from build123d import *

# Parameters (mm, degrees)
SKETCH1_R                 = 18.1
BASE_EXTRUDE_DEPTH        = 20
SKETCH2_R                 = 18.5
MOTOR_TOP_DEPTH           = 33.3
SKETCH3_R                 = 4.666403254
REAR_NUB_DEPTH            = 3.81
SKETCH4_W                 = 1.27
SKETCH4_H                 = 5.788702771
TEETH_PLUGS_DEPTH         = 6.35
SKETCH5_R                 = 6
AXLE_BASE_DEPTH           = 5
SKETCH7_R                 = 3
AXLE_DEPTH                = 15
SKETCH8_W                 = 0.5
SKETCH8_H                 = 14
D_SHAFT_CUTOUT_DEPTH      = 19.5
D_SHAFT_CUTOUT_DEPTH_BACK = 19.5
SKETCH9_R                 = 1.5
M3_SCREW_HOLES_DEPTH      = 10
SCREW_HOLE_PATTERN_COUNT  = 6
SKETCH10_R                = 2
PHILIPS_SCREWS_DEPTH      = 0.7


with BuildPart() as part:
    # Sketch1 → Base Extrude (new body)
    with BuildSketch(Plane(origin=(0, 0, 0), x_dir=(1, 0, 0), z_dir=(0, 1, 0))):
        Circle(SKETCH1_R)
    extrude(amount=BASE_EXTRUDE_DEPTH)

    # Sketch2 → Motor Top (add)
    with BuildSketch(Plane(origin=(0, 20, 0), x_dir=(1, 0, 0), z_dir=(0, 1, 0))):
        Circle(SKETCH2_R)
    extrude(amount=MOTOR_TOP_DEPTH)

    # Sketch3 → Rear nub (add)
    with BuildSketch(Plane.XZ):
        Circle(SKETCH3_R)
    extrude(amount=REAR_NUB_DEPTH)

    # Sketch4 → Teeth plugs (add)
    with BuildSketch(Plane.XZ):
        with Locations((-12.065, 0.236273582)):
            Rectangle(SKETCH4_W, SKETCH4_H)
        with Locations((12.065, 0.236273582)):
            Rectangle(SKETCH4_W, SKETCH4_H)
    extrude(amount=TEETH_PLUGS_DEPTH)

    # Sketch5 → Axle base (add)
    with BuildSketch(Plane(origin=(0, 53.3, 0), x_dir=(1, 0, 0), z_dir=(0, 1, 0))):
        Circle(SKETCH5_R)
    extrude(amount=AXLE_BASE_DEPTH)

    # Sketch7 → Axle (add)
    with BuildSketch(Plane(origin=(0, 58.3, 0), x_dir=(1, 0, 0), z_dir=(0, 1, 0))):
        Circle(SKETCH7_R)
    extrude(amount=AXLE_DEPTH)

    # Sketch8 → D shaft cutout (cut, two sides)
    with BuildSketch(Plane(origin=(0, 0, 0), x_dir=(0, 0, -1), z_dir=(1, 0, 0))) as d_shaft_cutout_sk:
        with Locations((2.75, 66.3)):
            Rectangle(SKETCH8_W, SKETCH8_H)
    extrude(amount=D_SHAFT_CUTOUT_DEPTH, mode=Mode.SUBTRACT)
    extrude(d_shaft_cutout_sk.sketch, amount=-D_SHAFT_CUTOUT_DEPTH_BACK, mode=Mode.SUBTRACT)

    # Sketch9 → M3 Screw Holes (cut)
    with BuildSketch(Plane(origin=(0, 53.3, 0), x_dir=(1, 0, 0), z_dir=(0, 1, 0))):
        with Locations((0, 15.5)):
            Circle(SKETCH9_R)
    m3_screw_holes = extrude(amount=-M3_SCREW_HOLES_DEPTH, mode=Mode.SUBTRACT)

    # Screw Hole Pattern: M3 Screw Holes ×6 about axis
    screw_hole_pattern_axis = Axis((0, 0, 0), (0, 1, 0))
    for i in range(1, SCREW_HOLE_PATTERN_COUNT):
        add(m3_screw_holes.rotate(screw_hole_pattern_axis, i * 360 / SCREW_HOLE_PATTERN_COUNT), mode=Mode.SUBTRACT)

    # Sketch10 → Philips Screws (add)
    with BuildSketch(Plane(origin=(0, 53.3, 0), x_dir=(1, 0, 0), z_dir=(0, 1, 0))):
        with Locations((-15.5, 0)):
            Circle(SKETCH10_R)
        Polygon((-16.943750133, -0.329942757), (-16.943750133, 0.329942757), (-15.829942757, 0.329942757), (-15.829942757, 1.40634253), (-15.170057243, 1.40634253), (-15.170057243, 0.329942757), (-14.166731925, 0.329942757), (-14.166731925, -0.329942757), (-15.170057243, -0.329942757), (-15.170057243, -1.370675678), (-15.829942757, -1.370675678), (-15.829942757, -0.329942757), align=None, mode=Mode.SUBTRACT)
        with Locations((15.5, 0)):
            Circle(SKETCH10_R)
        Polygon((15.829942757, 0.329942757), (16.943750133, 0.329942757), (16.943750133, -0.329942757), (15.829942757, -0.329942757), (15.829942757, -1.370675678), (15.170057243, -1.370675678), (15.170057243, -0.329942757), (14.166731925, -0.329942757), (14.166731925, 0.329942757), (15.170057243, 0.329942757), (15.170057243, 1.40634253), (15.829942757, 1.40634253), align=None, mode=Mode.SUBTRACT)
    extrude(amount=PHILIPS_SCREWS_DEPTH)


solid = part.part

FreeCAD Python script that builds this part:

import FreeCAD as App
import Part
import Sketcher
Q = App.Units.Quantity


def add_polygon(sketch, points):
    """Adds a closed chain of lines whose ends are joined by coincident constraints."""
    first, n = sketch.GeometryCount, len(points)
    for a, b in zip(points, points[1:] + points[:1]):
        sketch.addGeometry(Part.LineSegment(App.Vector(*a, 0), App.Vector(*b, 0)), False)
    for i in range(n):
        sketch.addConstraint(Sketcher.Constraint("Coincident", first + i, 2, first + (i + 1) % n, 1))

doc = App.newDocument("Part")
params = doc.addObject("Spreadsheet::Sheet", "Params")
for row, (alias, value) in enumerate([
    ("sketch1_diameter", "36.2 mm"),
    ("pad1_length", "20 mm"),
    ("sketch2_diameter", "37 mm"),
    ("pad2_length", "33.3 mm"),
    ("pad3_length", "3.81 mm"),
    ("sketch4_width", "1.27 mm"),
    ("pad4_length", "6.35 mm"),
    ("sketch5_diameter", "12 mm"),
    ("pad5_length", "5 mm"),
    ("sketch6_diameter", "6 mm"),
    ("pad6_length", "15 mm"),
    ("sketch7_width", "14 mm"),
    ("sketch7_height", "0.5 mm"),
    ("sketch8_diameter", "3 mm"),
    ("pocket2_length", "10 mm"),
    ("sketch9_diameter", "4 mm"),
    ("pad7_length", "0.7 mm"),
], start=1):
    params.set(f"A{row}", alias)
    params.set(f"B{row}", "=" + value)
    params.setAlias(f"B{row}", alias)

body = doc.addObject("PartDesign::Body", "Body")

# Sketch on XZ plane
sketch1 = body.newObject("Sketcher::SketchObject", "Sketch")
sketch1.AttachmentSupport = (doc.getObject("XZ_Plane"), [""])
sketch1.MapMode = "FlatFace"
sketch1.addGeometry(Part.Circle(App.Vector(0, 0, 0), App.Vector(0, 0, 1), 18), False)
sketch1.addConstraint(Sketcher.Constraint("Coincident", 0, 3, -1, 1))
sketch1.addConstraint(Sketcher.Constraint("Diameter", 0, Q("36.2 mm")))
sketch1.setExpression("Constraints[1]", "Params.sketch1_diameter")
pad1 = body.newObject("PartDesign::Pad", "Pad")
pad1.Profile = sketch1
pad1.setExpression("Length", "Params.pad1_length")
pad1.Reversed = True

# Sketch on XZ plane
sketch2 = body.newObject("Sketcher::SketchObject", "Sketch001")
sketch2.AttachmentSupport = (doc.getObject("XZ_Plane"), [""])
sketch2.MapMode = "FlatFace"
sketch2.AttachmentOffset = App.Placement(App.Vector(0, 0, -20), App.Rotation())
sketch2.addGeometry(Part.Circle(App.Vector(0, 0, 0), App.Vector(0, 0, 1), 18), False)
sketch2.addConstraint(Sketcher.Constraint("Coincident", 0, 3, -1, 1))
sketch2.addConstraint(Sketcher.Constraint("Diameter", 0, Q("37 mm")))
sketch2.setExpression("Constraints[1]", "Params.sketch2_diameter")
pad2 = body.newObject("PartDesign::Pad", "Pad001")
pad2.Profile = sketch2
pad2.setExpression("Length", "Params.pad2_length")
pad2.Reversed = True

# Sketch on XZ plane
sketch3 = body.newObject("Sketcher::SketchObject", "Sketch002")
sketch3.AttachmentSupport = (doc.getObject("XZ_Plane"), [""])
sketch3.MapMode = "FlatFace"
sketch3.addGeometry(Part.Circle(App.Vector(0, 0, 0), App.Vector(0, 0, 1), 4.7), False)
sketch3.addConstraint(Sketcher.Constraint("Coincident", 0, 3, -1, 1))
sketch3.addConstraint(Sketcher.Constraint("Diameter", 0, Q("9.332807 mm")))
pad3 = body.newObject("PartDesign::Pad", "Pad002")
pad3.Profile = sketch3
pad3.setExpression("Length", "Params.pad3_length")

# Sketch on XZ plane
sketch4 = body.newObject("Sketcher::SketchObject", "Sketch003")
sketch4.AttachmentSupport = (doc.getObject("XZ_Plane"), [""])
sketch4.MapMode = "FlatFace"
add_polygon(sketch4, [(-12.7, 3.1), (-12.7, -2.7), (-11.4, -2.7), (-11.4, 3.1)])  # lines 0-3
add_polygon(sketch4, [(11.4, 3.1), (11.4, -2.7), (12.7, -2.7), (12.7, 3.1)])  # lines 4-7
sketch4.addConstraint(Sketcher.Constraint("Vertical", 0))
sketch4.addConstraint(Sketcher.Constraint("Horizontal", 1))
sketch4.addConstraint(Sketcher.Constraint("Vertical", 2))
sketch4.addConstraint(Sketcher.Constraint("Horizontal", 3))
sketch4.addConstraint(Sketcher.Constraint("Vertical", 4))
sketch4.addConstraint(Sketcher.Constraint("Horizontal", 5))
sketch4.addConstraint(Sketcher.Constraint("Vertical", 6))
sketch4.addConstraint(Sketcher.Constraint("Horizontal", 7))
sketch4.addConstraint(Sketcher.Constraint("Symmetric", 1, 2, 4, 2, -2))
sketch4.addConstraint(Sketcher.Constraint("Symmetric", 3, 2, 6, 2, -2))
sketch4.addConstraint(Sketcher.Constraint("DistanceX", 1, 1, 1, 2, Q("1.27 mm")))
sketch4.addConstraint(Sketcher.Constraint("DistanceX", 0, 2, -1, 1, Q("12.7 mm")))
sketch4.addConstraint(Sketcher.Constraint("DistanceY", 0, 2, 0, 1, Q("5.788703 mm")))
sketch4.addConstraint(Sketcher.Constraint("DistanceY", 0, 2, -1, 1, Q("2.658078 mm")))
sketch4.setExpression("Constraints[18]", "Params.sketch4_width")
pad4 = body.newObject("PartDesign::Pad", "Pad003")
pad4.Profile = sketch4
pad4.setExpression("Length", "Params.pad4_length")

# Sketch on XZ plane
sketch5 = body.newObject("Sketcher::SketchObject", "Sketch004")
sketch5.AttachmentSupport = (doc.getObject("XZ_Plane"), [""])
sketch5.MapMode = "FlatFace"
sketch5.AttachmentOffset = App.Placement(App.Vector(0, 0, -53.3), App.Rotation())
sketch5.addGeometry(Part.Circle(App.Vector(0, 0, 0), App.Vector(0, 0, 1), 6), False)
sketch5.addConstraint(Sketcher.Constraint("Coincident", 0, 3, -1, 1))
sketch5.addConstraint(Sketcher.Constraint("Diameter", 0, Q("12 mm")))
sketch5.setExpression("Constraints[1]", "Params.sketch5_diameter")
pad5 = body.newObject("PartDesign::Pad", "Pad004")
pad5.Profile = sketch5
pad5.setExpression("Length", "Params.pad5_length")
pad5.Reversed = True

# Sketch on XZ plane
sketch6 = body.newObject("Sketcher::SketchObject", "Sketch005")
sketch6.AttachmentSupport = (doc.getObject("XZ_Plane"), [""])
sketch6.MapMode = "FlatFace"
sketch6.AttachmentOffset = App.Placement(App.Vector(0, 0, -58.3), App.Rotation())
sketch6.addGeometry(Part.Circle(App.Vector(0, 0, 0), App.Vector(0, 0, 1), 3), False)
sketch6.addConstraint(Sketcher.Constraint("Coincident", 0, 3, -1, 1))
sketch6.addConstraint(Sketcher.Constraint("Diameter", 0, Q("6 mm")))
sketch6.setExpression("Constraints[1]", "Params.sketch6_diameter")
pad6 = body.newObject("PartDesign::Pad", "Pad005")
pad6.Profile = sketch6
pad6.setExpression("Length", "Params.pad6_length")
pad6.Reversed = True

# Sketch on YZ plane
sketch7 = body.newObject("Sketcher::SketchObject", "Sketch006")
sketch7.AttachmentSupport = (doc.getObject("YZ_Plane"), [""])
sketch7.MapMode = "FlatFace"
add_polygon(sketch7, [(73.3, -2.5), (59.3, -2.5), (59.3, -3), (73.3, -3)])  # lines 0-3
sketch7.addConstraint(Sketcher.Constraint("Horizontal", 0))
sketch7.addConstraint(Sketcher.Constraint("Vertical", 1))
sketch7.addConstraint(Sketcher.Constraint("Horizontal", 2))
sketch7.addConstraint(Sketcher.Constraint("Vertical", 3))
sketch7.addConstraint(Sketcher.Constraint("DistanceX", 0, 2, 0, 1, Q("14 mm")))
sketch7.addConstraint(Sketcher.Constraint("DistanceY", 1, 2, 1, 1, Q("0.5 mm")))
sketch7.addConstraint(Sketcher.Constraint("DistanceY", 1, 2, -1, 1, Q("3 mm")))
sketch7.addConstraint(Sketcher.Constraint("DistanceX", -1, 1, 0, 2, Q("59.3 mm")))
sketch7.setExpression("Constraints[8]", "Params.sketch7_width")
sketch7.setExpression("Constraints[9]", "Params.sketch7_height")
pocket1 = body.newObject("PartDesign::Pocket", "Pocket")
pocket1.Profile = sketch7
pocket1.Type = "ThroughAll"
pocket1.Midplane = True

# Sketch on XZ plane
sketch8 = body.newObject("Sketcher::SketchObject", "Sketch007")
sketch8.AttachmentSupport = (doc.getObject("XZ_Plane"), [""])
sketch8.MapMode = "FlatFace"
sketch8.AttachmentOffset = App.Placement(App.Vector(0, 0, -53.3), App.Rotation())
sketch8.addGeometry(Part.Circle(App.Vector(0, -15.5, 0), App.Vector(0, 0, 1), 1.5), False)
sketch8.addConstraint(Sketcher.Constraint("PointOnObject", 0, 3, -2))
sketch8.addConstraint(Sketcher.Constraint("Diameter", 0, Q("3 mm")))
sketch8.addConstraint(Sketcher.Constraint("DistanceY", 0, 3, -1, 1, Q("15.5 mm")))
sketch8.setExpression("Constraints[1]", "Params.sketch8_diameter")
pocket2 = body.newObject("PartDesign::Pocket", "Pocket001")
pocket2.Profile = sketch8
pocket2.setExpression("Length", "Params.pocket2_length")
pocket2.Reversed = True
doc.recompute()

polarpattern = body.newObject("PartDesign::PolarPattern", "PolarPattern")
polarpattern.Originals = [pocket2]
polarpattern.Axis = (doc.getObject("Y_Axis"), [""])
polarpattern.Angle = 360
polarpattern.Occurrences = 6
body.Tip = polarpattern

# Sketch on XZ plane
sketch9 = body.newObject("Sketcher::SketchObject", "Sketch008")
sketch9.AttachmentSupport = (doc.getObject("XZ_Plane"), [""])
sketch9.MapMode = "FlatFace"
sketch9.AttachmentOffset = App.Placement(App.Vector(0, 0, -53.3), App.Rotation())
sketch9.addGeometry(Part.Circle(App.Vector(-15.5, 0, 0), App.Vector(0, 0, 1), 2), False)  # 0
add_polygon(sketch9, [(-15.8, 0.3), (-16.9, 0.3), (-16.9, -0.3), (-15.8, -0.3), (-15.8, -1.4), (-15.2, -1.4), (-15.2, -0.3), (-14.2, -0.3), (-14.2, 0.3), (-15.2, 0.3), (-15.2, 1.4), (-15.8, 1.4)])  # lines 1-12
sketch9.addGeometry(Part.Circle(App.Vector(15.5, 0, 0), App.Vector(0, 0, 1), 2), False)  # 13
add_polygon(sketch9, [(15.8, -1.4), (15.8, -0.3), (16.9, -0.3), (16.9, 0.3), (15.8, 0.3), (15.8, 1.4), (15.2, 1.4), (15.2, 0.3), (14.2, 0.3), (14.2, -0.3), (15.2, -0.3), (15.2, -1.4)])  # lines 14-25
sketch9.addConstraint(Sketcher.Constraint("Horizontal", 1))
sketch9.addConstraint(Sketcher.Constraint("Vertical", 2))
sketch9.addConstraint(Sketcher.Constraint("Horizontal", 3))
sketch9.addConstraint(Sketcher.Constraint("Vertical", 4))
sketch9.addConstraint(Sketcher.Constraint("Horizontal", 5))
sketch9.addConstraint(Sketcher.Constraint("Vertical", 6))
sketch9.addConstraint(Sketcher.Constraint("Horizontal", 7))
sketch9.addConstraint(Sketcher.Constraint("Vertical", 8))
sketch9.addConstraint(Sketcher.Constraint("Horizontal", 9))
sketch9.addConstraint(Sketcher.Constraint("Vertical", 10))
sketch9.addConstraint(Sketcher.Constraint("Horizontal", 11))
sketch9.addConstraint(Sketcher.Constraint("Vertical", 12))
sketch9.addConstraint(Sketcher.Constraint("Vertical", 14))
sketch9.addConstraint(Sketcher.Constraint("Horizontal", 15))
sketch9.addConstraint(Sketcher.Constraint("Vertical", 16))
sketch9.addConstraint(Sketcher.Constraint("Horizontal", 17))
sketch9.addConstraint(Sketcher.Constraint("Vertical", 18))
sketch9.addConstraint(Sketcher.Constraint("Horizontal", 19))
sketch9.addConstraint(Sketcher.Constraint("Vertical", 20))
sketch9.addConstraint(Sketcher.Constraint("Horizontal", 21))
sketch9.addConstraint(Sketcher.Constraint("Vertical", 22))
sketch9.addConstraint(Sketcher.Constraint("Horizontal", 23))
sketch9.addConstraint(Sketcher.Constraint("Vertical", 24))
sketch9.addConstraint(Sketcher.Constraint("Horizontal", 25))
sketch9.addConstraint(Sketcher.Constraint("Equal", 0, 13))
sketch9.addConstraint(Sketcher.Constraint("Symmetric", 0, 3, 13, 3, -1, 1))
sketch9.addConstraint(Sketcher.Constraint("Symmetric", 12, 2, 14, 2, -1, 1))
sketch9.addConstraint(Sketcher.Constraint("Symmetric", 2, 2, 16, 2, -1, 1))
sketch9.addConstraint(Sketcher.Constraint("Symmetric", 6, 2, 20, 2, -1, 1))
sketch9.addConstraint(Sketcher.Constraint("Symmetric", 8, 2, 22, 2, -1, 1))
sketch9.addConstraint(Sketcher.Constraint("Symmetric", 3, 2, 14, 2, -2))
sketch9.addConstraint(Sketcher.Constraint("Symmetric", 11, 2, 18, 2, -2))
sketch9.addConstraint(Sketcher.Constraint("Symmetric", 9, 2, 20, 2, -2))
sketch9.addConstraint(Sketcher.Constraint("Symmetric", 5, 2, 24, 2, -2))
sketch9.addConstraint(Sketcher.Constraint("PointOnObject", 0, 3, -1))
sketch9.addConstraint(Sketcher.Constraint("Horizontal", 3, 2, 6, 2))
sketch9.addConstraint(Sketcher.Constraint("Equal", 25, 2))
sketch9.addConstraint(Sketcher.Constraint("Diameter", 0, Q("4 mm")))
sketch9.addConstraint(Sketcher.Constraint("DistanceX", 0, 3, 13, 3, Q("31 mm")))
sketch9.addConstraint(Sketcher.Constraint("DistanceX", 6, 2, 14, 2, Q("31 mm")))
sketch9.addConstraint(Sketcher.Constraint("DistanceY", 4, 2, 4, 1, Q("1.0764 mm")))
sketch9.addConstraint(Sketcher.Constraint("DistanceX", 1, 2, 1, 1, Q("1.113807 mm")))
sketch9.addConstraint(Sketcher.Constraint("DistanceX", 5, 1, 5, 2, Q("0.659886 mm")))
sketch9.addConstraint(Sketcher.Constraint("DistanceX", 7, 1, 7, 2, Q("1.003325 mm")))
sketch9.addConstraint(Sketcher.Constraint("DistanceY", 10, 1, 10, 2, Q("1.040733 mm")))
sketch9.setExpression("Constraints[61]", "Params.sketch9_diameter")
pad7 = body.newObject("PartDesign::Pad", "Pad006")
pad7.Profile = sketch9
pad7.setExpression("Length", "Params.pad7_length")
pad7.Reversed = True

doc.recompute()
